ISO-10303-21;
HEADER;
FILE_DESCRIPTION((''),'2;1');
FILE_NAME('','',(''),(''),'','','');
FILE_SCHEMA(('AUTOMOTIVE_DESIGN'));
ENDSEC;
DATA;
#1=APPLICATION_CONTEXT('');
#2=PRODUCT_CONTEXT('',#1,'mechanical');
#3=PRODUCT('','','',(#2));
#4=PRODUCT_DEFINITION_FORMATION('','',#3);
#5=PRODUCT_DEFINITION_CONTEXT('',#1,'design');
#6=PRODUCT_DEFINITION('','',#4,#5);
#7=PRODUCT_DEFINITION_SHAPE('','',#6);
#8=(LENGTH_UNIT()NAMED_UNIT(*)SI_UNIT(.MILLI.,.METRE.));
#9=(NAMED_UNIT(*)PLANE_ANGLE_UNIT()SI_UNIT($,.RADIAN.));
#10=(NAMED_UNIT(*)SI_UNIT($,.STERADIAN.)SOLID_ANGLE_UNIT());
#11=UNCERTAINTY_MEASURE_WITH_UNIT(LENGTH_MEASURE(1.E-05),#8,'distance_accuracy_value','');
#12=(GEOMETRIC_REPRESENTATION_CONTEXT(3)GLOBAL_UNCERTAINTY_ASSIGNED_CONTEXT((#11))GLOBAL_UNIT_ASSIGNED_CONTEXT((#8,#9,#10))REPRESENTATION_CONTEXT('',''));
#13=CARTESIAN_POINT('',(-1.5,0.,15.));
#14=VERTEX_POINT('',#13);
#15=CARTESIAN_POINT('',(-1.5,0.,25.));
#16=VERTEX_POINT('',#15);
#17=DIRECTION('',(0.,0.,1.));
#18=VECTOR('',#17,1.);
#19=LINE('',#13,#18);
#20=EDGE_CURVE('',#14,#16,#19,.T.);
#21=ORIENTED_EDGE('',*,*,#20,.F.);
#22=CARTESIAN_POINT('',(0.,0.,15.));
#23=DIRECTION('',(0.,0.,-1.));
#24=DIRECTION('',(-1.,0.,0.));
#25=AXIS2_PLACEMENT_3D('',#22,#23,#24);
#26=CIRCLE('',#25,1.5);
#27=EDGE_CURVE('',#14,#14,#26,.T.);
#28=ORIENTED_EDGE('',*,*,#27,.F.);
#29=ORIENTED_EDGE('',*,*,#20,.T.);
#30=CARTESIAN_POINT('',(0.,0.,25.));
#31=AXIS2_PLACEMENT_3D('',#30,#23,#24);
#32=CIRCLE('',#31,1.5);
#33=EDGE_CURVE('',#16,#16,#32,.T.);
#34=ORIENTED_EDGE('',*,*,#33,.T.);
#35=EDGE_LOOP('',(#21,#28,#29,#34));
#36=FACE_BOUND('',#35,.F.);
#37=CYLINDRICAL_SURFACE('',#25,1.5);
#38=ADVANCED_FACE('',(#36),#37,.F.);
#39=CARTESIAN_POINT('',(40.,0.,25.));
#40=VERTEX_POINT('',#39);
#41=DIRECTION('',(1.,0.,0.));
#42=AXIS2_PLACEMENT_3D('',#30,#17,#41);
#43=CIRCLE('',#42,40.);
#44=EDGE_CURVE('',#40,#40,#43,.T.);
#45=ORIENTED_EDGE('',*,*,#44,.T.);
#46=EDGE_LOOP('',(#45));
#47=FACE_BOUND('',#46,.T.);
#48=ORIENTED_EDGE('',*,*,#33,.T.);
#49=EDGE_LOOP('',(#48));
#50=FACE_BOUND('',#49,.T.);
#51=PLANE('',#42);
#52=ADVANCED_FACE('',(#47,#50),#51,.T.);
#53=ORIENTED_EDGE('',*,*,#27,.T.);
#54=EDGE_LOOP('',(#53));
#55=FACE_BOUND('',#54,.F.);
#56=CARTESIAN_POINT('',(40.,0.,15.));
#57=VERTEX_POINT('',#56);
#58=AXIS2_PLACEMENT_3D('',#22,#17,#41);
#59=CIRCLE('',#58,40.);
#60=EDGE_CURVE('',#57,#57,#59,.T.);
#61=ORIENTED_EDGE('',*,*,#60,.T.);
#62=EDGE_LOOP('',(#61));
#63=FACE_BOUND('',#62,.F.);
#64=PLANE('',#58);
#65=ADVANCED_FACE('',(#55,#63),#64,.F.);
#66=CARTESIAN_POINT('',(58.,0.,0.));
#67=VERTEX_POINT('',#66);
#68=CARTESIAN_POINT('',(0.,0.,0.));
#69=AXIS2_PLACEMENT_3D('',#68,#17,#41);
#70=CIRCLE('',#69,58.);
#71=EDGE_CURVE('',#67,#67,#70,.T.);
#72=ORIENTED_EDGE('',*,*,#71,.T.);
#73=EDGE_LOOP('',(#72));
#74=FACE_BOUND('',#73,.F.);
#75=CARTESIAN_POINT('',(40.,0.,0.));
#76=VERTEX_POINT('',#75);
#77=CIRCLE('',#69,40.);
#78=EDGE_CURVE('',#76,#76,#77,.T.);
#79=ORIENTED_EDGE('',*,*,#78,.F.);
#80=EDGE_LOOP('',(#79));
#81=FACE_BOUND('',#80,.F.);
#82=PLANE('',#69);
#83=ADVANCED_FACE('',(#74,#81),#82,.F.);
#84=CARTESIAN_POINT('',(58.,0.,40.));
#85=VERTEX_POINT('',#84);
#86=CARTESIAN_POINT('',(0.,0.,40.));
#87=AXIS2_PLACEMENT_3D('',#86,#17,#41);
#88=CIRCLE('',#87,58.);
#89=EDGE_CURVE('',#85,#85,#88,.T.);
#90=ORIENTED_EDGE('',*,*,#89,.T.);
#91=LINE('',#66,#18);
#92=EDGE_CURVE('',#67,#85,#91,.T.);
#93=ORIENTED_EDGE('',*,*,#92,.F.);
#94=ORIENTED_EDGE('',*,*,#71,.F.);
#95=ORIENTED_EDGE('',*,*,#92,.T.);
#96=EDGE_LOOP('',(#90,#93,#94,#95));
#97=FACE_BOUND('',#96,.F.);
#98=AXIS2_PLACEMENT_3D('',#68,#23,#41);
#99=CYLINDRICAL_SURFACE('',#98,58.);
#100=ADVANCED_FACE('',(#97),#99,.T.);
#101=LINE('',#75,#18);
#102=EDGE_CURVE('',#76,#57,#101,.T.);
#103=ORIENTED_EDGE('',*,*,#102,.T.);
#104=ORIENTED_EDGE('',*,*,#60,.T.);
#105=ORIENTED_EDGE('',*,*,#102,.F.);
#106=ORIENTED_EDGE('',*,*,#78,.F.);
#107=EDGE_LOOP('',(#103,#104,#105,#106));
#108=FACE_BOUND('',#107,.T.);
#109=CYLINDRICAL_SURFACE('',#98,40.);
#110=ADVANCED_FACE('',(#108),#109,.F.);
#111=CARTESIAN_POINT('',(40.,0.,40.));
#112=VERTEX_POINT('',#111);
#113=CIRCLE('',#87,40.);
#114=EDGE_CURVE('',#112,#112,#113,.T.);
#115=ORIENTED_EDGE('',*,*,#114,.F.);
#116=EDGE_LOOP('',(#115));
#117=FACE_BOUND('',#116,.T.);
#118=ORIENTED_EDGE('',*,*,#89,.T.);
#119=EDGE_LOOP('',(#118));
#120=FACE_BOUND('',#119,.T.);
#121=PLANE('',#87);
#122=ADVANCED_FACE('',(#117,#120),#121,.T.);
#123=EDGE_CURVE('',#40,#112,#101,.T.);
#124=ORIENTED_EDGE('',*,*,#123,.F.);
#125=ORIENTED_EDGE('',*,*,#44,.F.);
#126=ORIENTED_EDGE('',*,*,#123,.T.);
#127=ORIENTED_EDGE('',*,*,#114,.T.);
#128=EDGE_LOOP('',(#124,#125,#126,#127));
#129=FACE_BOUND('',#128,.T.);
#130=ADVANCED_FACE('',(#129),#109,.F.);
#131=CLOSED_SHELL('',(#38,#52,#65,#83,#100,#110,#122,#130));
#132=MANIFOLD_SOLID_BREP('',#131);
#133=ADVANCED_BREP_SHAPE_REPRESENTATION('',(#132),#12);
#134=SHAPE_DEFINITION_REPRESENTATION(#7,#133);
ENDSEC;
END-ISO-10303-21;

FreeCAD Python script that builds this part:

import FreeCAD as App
import Part
import Sketcher

doc = App.newDocument("Part")
params = doc.addObject("Spreadsheet::Sheet", "Params")
for row, (alias, value) in enumerate([
    ("sketch1_diameter", "116 mm"),
    ("sketch1_diameter2", "80 mm"),
    ("pad1_length", "40 mm"),
    ("sketch2_diameter", "80 mm"),
    ("pad2_length", "10 mm"),
    ("sketch3_diameter", "3 mm"),
], start=1):
    params.set(f"A{row}", alias)
    params.set(f"B{row}", "=" + value)
    params.setAlias(f"B{row}", alias)

body = doc.addObject("PartDesign::Body", "Body")

# Sketch on XY plane
sketch1 = doc.addObject("Sketcher::SketchObject", "Sketch")
body.addObject(sketch1)
sketch1.AttachmentSupport = (doc.XY_Plane, [""])
sketch1.MapMode = "FlatFace"
sketch1.addGeometry([
    Part.Circle(App.Vector(0, 0, 0), App.Vector(0, 0, 1), 58),
    Part.Circle(App.Vector(0, 0, 0), App.Vector(0, 0, 1), 40),
], False)
sketch1.addConstraint([
    Sketcher.Constraint("Coincident", 0, 3, -1, 1),
    Sketcher.Constraint("Coincident", 1, 3, -1, 1),
    Sketcher.Constraint("Diameter", 0, 116.0),
    Sketcher.Constraint("Diameter", 1, 80.0),
])
sketch1.setExpression("Constraints[2]", "Params.sketch1_diameter")
sketch1.setExpression("Constraints[3]", "Params.sketch1_diameter2")
pad1 = doc.addObject("PartDesign::Pad", "Pad")
body.addObject(pad1)
pad1.Profile = sketch1
pad1.setExpression("Length", "Params.pad1_length")

# Sketch on XY plane
sketch2 = doc.addObject("Sketcher::SketchObject", "Sketch001")
body.addObject(sketch2)
sketch2.AttachmentSupport = (doc.XY_Plane, [""])
sketch2.MapMode = "FlatFace"
sketch2.AttachmentOffset = App.Placement(App.Vector(0, 0, 20), App.Rotation())
sketch2.addGeometry(Part.Circle(App.Vector(0, 0, 0), App.Vector(0, 0, 1), 40), False)
sketch2.addConstraint([
    Sketcher.Constraint("Coincident", 0, 3, -1, 1),
    Sketcher.Constraint("Diameter", 0, 80.0),
])
sketch2.setExpression("Constraints[1]", "Params.sketch2_diameter")
pad2 = doc.addObject("PartDesign::Pad", "Pad001")
body.addObject(pad2)
pad2.Profile = sketch2
pad2.setExpression("Length", "Params.pad2_length")
pad2.Midplane = True

# Sketch on XY plane
sketch3 = doc.addObject("Sketcher::SketchObject", "Sketch002")
body.addObject(sketch3)
sketch3.AttachmentSupport = (doc.XY_Plane, [""])
sketch3.MapMode = "FlatFace"
sketch3.AttachmentOffset = App.Placement(App.Vector(0, 0, 15), App.Rotation())
sketch3.addGeometry(Part.Circle(App.Vector(0, 0, 0), App.Vector(0, 0, 1), 1.5), False)
sketch3.addConstraint([
    Sketcher.Constraint("Coincident", 0, 3, -1, 1),
    Sketcher.Constraint("Diameter", 0, 3.0),
])
sketch3.setExpression("Constraints[1]", "Params.sketch3_diameter")
pocket1 = doc.addObject("PartDesign::Pocket", "Pocket")
body.addObject(pocket1)
pocket1.Profile = sketch3
pocket1.Type = "ThroughAll"
pocket1.Reversed = True

doc.recompute()
